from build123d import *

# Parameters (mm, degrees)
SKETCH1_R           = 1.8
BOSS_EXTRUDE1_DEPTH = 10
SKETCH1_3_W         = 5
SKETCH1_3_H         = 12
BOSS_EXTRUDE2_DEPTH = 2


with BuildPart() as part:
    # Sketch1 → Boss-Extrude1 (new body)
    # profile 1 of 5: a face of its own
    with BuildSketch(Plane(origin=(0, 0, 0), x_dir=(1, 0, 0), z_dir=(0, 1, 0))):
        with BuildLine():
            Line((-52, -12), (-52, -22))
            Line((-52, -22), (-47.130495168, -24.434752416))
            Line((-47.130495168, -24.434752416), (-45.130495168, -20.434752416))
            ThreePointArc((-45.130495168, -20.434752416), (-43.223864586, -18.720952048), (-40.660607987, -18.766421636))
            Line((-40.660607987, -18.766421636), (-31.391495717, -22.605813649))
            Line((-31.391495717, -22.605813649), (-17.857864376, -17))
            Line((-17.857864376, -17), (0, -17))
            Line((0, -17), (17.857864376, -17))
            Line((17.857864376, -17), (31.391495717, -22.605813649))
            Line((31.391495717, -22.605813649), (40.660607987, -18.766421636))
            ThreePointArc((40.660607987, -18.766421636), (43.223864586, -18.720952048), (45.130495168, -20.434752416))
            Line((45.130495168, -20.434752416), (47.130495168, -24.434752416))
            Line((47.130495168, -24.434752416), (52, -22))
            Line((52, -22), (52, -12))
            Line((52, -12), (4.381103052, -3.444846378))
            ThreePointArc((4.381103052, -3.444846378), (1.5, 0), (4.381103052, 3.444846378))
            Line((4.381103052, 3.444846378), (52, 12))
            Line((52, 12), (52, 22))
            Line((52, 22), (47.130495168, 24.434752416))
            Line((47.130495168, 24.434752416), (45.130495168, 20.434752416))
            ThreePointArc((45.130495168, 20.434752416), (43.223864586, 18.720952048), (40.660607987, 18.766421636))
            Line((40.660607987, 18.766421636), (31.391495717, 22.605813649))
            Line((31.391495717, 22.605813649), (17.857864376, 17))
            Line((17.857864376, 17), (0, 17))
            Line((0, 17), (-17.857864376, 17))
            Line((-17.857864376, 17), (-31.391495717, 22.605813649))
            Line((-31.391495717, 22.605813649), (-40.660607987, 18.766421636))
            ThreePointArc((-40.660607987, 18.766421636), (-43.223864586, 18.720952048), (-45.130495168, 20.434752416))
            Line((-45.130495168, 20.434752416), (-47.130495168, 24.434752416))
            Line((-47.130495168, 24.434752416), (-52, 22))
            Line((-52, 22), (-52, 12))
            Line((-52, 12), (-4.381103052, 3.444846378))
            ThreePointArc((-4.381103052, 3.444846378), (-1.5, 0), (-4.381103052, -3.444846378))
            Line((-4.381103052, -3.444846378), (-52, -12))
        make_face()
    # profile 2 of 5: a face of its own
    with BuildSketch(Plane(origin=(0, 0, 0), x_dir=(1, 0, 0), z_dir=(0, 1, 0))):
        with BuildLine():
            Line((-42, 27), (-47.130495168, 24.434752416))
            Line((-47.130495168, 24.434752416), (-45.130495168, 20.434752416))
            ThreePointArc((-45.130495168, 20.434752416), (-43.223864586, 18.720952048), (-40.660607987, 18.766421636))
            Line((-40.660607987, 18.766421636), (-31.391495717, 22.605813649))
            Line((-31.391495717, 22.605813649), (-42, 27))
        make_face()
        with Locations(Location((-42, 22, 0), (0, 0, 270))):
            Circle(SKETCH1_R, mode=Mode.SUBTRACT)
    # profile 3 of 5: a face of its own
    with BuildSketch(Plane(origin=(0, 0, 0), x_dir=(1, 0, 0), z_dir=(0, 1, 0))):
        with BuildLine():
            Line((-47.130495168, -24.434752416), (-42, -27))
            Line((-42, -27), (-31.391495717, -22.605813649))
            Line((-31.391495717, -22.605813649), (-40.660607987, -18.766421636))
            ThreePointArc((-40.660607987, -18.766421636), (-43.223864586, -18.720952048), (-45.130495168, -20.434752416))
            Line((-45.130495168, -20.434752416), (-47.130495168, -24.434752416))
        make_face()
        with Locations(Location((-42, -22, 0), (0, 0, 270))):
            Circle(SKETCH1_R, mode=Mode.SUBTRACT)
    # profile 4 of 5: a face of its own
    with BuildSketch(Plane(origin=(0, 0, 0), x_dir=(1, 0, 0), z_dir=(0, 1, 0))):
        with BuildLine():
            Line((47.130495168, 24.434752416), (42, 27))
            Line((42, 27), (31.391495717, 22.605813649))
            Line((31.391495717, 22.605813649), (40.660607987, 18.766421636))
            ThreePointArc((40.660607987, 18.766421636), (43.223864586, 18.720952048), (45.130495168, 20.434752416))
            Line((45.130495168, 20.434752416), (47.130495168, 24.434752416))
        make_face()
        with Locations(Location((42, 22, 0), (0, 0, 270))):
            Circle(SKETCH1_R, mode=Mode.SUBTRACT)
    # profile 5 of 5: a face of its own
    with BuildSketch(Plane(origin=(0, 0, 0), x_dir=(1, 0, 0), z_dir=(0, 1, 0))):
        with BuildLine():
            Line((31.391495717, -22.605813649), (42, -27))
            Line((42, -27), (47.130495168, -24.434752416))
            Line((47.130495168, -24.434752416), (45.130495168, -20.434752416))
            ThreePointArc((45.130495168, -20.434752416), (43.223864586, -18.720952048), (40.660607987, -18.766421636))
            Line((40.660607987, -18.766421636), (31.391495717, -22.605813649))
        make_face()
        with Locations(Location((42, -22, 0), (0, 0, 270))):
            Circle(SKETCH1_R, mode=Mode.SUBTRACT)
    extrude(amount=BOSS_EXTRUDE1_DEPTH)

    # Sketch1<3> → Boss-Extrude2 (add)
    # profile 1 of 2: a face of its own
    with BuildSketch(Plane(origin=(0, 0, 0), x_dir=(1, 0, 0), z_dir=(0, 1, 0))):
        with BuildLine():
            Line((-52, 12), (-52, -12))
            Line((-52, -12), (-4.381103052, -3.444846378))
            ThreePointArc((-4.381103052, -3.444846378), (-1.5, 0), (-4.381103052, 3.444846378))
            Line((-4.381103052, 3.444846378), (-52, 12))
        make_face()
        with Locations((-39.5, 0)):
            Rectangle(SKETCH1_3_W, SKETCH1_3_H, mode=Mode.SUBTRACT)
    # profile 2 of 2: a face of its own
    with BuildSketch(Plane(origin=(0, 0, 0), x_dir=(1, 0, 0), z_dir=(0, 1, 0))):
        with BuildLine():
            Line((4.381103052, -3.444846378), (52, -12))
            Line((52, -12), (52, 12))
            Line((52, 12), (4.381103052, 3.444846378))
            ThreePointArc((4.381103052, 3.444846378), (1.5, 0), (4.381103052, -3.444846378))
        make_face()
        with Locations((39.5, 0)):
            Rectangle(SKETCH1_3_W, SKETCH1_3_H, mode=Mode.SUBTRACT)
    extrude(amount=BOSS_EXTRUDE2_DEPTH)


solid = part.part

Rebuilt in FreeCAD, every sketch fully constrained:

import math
import FreeCAD as App
import Part
import Sketcher
Q = App.Units.Quantity


def add_polygon(sketch, points):
    """Adds a closed chain of lines whose ends are joined by coincident constraints."""
    first, n = sketch.GeometryCount, len(points)
    for a, b in zip(points, points[1:] + points[:1]):
        sketch.addGeometry(Part.LineSegment(App.Vector(*a, 0), App.Vector(*b, 0)), False)
    for i in range(n):
        sketch.addConstraint(Sketcher.Constraint("Coincident", first + i, 2, first + (i + 1) % n, 1))

doc = App.newDocument("Part")
body = doc.addObject("PartDesign::Body", "Body")

sketch1 = body.newObject("Sketcher::SketchObject", "Sketch")
sketch1.AttachmentSupport = (doc.getObject("XZ_Plane"), [""])
sketch1.MapMode = "FlatFace"
sketch1.addGeometry([
    Part.LineSegment(App.Vector(-52, 12, 0), App.Vector(-52, 22, 0)),
    Part.LineSegment(App.Vector(-52, 22, 0), App.Vector(-42, 27, 0)),
    Part.LineSegment(App.Vector(-42, 27, 0), App.Vector(-31.391496, 22.605814, 0)),
    Part.LineSegment(App.Vector(-31.391496, 22.605814, 0), App.Vector(-17.857864, 17, 0)),
    Part.LineSegment(App.Vector(-17.857864, 17, 0), App.Vector(17.857864, 17, 0)),
    Part.LineSegment(App.Vector(17.857864, 17, 0), App.Vector(31.391496, 22.605814, 0)),
    Part.LineSegment(App.Vector(31.391496, 22.605814, 0), App.Vector(42, 27, 0)),
    Part.LineSegment(App.Vector(42, 27, 0), App.Vector(52, 22, 0)),
    Part.LineSegment(App.Vector(52, 22, 0), App.Vector(52, 12, 0)),
    Part.LineSegment(App.Vector(52, 12, 0), App.Vector(4.381103, 3.444846, 0)),
    Part.ArcOfCircle(Part.Circle(App.Vector(5, 0, 0), App.Vector(0, 0, 1), 3.5), math.radians(100.185036), math.radians(259.814964)),
    Part.LineSegment(App.Vector(4.381103, -3.444846, 0), App.Vector(52, -12, 0)),
    Part.LineSegment(App.Vector(52, -12, 0), App.Vector(52, -22, 0)),
    Part.LineSegment(App.Vector(52, -22, 0), App.Vector(42, -27, 0)),
    Part.LineSegment(App.Vector(42, -27, 0), App.Vector(31.391496, -22.605814, 0)),
    Part.LineSegment(App.Vector(31.391496, -22.605814, 0), App.Vector(17.857864, -17, 0)),
    Part.LineSegment(App.Vector(17.857864, -17, 0), App.Vector(-17.857864, -17, 0)),
    Part.LineSegment(App.Vector(-17.857864, -17, 0), App.Vector(-31.391496, -22.605814, 0)),
    Part.LineSegment(App.Vector(-31.391496, -22.605814, 0), App.Vector(-42, -27, 0)),
    Part.LineSegment(App.Vector(-42, -27, 0), App.Vector(-52, -22, 0)),
    Part.LineSegment(App.Vector(-52, -22, 0), App.Vector(-52, -12, 0)),
    Part.LineSegment(App.Vector(-52, -12, 0), App.Vector(-4.381103, -3.444846, 0)),
    Part.ArcOfCircle(Part.Circle(App.Vector(-5, 0, 0), App.Vector(0, 0, 1), 3.5), math.radians(-79.814964), math.radians(79.814964)),
    Part.LineSegment(App.Vector(-4.381103, 3.444846, 0), App.Vector(-52, 12, 0)),
    Part.Circle(App.Vector(-42, 22, 0), App.Vector(0, 0, 1), 1.8),
    Part.Circle(App.Vector(42, 22, 0), App.Vector(0, 0, 1), 1.8),
    Part.Circle(App.Vector(42, -22, 0), App.Vector(0, 0, 1), 1.8),
    Part.Circle(App.Vector(-42, -22, 0), App.Vector(0, 0, 1), 1.8),
], False)
sketch1.addConstraint([
    Sketcher.Constraint("Coincident", 0, 2, 1, 1),
    Sketcher.Constraint("Coincident", 1, 2, 2, 1),
    Sketcher.Constraint("Coincident", 2, 2, 3, 1),
    Sketcher.Constraint("Coincident", 3, 2, 4, 1),
    Sketcher.Constraint("Coincident", 4, 2, 5, 1),
    Sketcher.Constraint("Coincident", 5, 2, 6, 1),
    Sketcher.Constraint("Coincident", 6, 2, 7, 1),
    Sketcher.Constraint("Coincident", 7, 2, 8, 1),
    Sketcher.Constraint("Coincident", 8, 2, 9, 1),
    Sketcher.Constraint("Tangent", 9, 2, 10, 1),
    Sketcher.Constraint("Tangent", 10, 2, 11, 1),
    Sketcher.Constraint("Coincident", 11, 2, 12, 1),
    Sketcher.Constraint("Coincident", 12, 2, 13, 1),
    Sketcher.Constraint("Coincident", 13, 2, 14, 1),
    Sketcher.Constraint("Coincident", 14, 2, 15, 1),
    Sketcher.Constraint("Coincident", 15, 2, 16, 1),
    Sketcher.Constraint("Coincident", 16, 2, 17, 1),
    Sketcher.Constraint("Coincident", 17, 2, 18, 1),
    Sketcher.Constraint("Coincident", 18, 2, 19, 1),
    Sketcher.Constraint("Coincident", 19, 2, 20, 1),
    Sketcher.Constraint("Coincident", 20, 2, 21, 1),
    Sketcher.Constraint("Tangent", 21, 2, 22, 1),
    Sketcher.Constraint("Tangent", 22, 2, 23, 1),
    Sketcher.Constraint("Coincident", 23, 2, 0, 1),
    Sketcher.Constraint("Vertical", 0),
    Sketcher.Constraint("Horizontal", 4),
    Sketcher.Constraint("Vertical", 8),
    Sketcher.Constraint("Vertical", 12),
    Sketcher.Constraint("Horizontal", 16),
    Sketcher.Constraint("Vertical", 20),
    Sketcher.Constraint("Equal", 10, 22),
    Sketcher.Constraint("Equal", 24, 25),
    Sketcher.Constraint("Equal", 25, 26),
    Sketcher.Constraint("Equal", 26, 27),
    Sketcher.Constraint("Symmetric", 10, 3, 22, 3, -1, 1),
    Sketcher.Constraint("Symmetric", 24, 3, 26, 3, -1, 1),
    Sketcher.Constraint("Symmetric", 25, 3, 27, 3, -1, 1),
    Sketcher.Constraint("Symmetric", 0, 2, 12, 2, -1, 1),
    Sketcher.Constraint("Symmetric", 1, 2, 13, 2, -1, 1),
    Sketcher.Constraint("Symmetric", 2, 2, 14, 2, -1, 1),
    Sketcher.Constraint("Symmetric", 3, 2, 15, 2, -1, 1),
    Sketcher.Constraint("Symmetric", 5, 2, 17, 2, -1, 1),
    Sketcher.Constraint("Symmetric", 6, 2, 18, 2, -1, 1),
    Sketcher.Constraint("Symmetric", 7, 2, 19, 2, -1, 1),
    Sketcher.Constraint("Symmetric", 24, 3, 25, 3, -2),
    Sketcher.Constraint("Symmetric", 2, 2, 5, 2, -2),
    Sketcher.Constraint("Symmetric", 1, 2, 6, 2, -2),
    Sketcher.Constraint("Symmetric", 0, 2, 7, 2, -2),
    Sketcher.Constraint("Symmetric", 10, 2, 21, 2, -2),
    Sketcher.Constraint("Parallel", 2, 3),
    Sketcher.Constraint("Parallel", 5, 6),
    Sketcher.Constraint("Parallel", 6, 17),
    Sketcher.Constraint("Parallel", 9, 21),
    Sketcher.Constraint("Parallel", 11, 23),
    Sketcher.Constraint("Horizontal", 25, 3, 0, 2),
    Sketcher.Constraint("Vertical", 27, 3, 1, 2),
    Sketcher.Constraint("Diameter", 24, Q("3.6 mm")),
    Sketcher.Constraint("Radius", 10, Q("3.5 mm")),
    Sketcher.Constraint("DistanceY", 0, 1, 0, 2, Q("10 mm")),
    Sketcher.Constraint("DistanceX", -1, 1, 10, 3, Q("5 mm")),
    Sketcher.Constraint("DistanceX", 24, 3, -1, 1, Q("42 mm")),
    Sketcher.Constraint("DistanceY", -1, 1, 24, 3, Q("22 mm")),
    Sketcher.Constraint("DistanceX", 0, 2, -1, 1, Q("52 mm")),
    Sketcher.Constraint("DistanceY", -1, 1, 1, 2, Q("27 mm")),
    Sketcher.Constraint("DistanceY", -1, 1, 3, 2, Q("17 mm")),
    Sketcher.Constraint("Angle", 2, Q("-22.5 deg")),
    Sketcher.Constraint("DistanceX", 17, 2, 10, 2, Q("35.772599 mm")),
])
pad1 = body.newObject("PartDesign::Pad", "Pad")
pad1.Profile = sketch1
pad1.Length = 10
pad1.Reversed = True

sketch2 = body.newObject("Sketcher::SketchObject", "Sketch001")
sketch2.AttachmentSupport = (doc.getObject("XZ_Plane"), [""])
sketch2.MapMode = "FlatFace"
sketch2.addGeometry(Part.LineSegment(App.Vector(-52, -12, 0), App.Vector(-52, 12, 0)), False)
sketch2.addGeometry(Part.LineSegment(App.Vector(-52, 12, 0), App.Vector(-4.381103, 3.444846, 0)), False)
sketch2.addGeometry(Part.ArcOfCircle(Part.Circle(App.Vector(-5, 0, 0), App.Vector(0, 0, 1), 3.5), math.radians(-79.814964), math.radians(79.814964)), False)
sketch2.addGeometry(Part.LineSegment(App.Vector(-4.381103, -3.444846, 0), App.Vector(-52, -12, 0)), False)
add_polygon(sketch2, [(-37, 6), (-42, 6), (-42, -6), (-37, -6)])
sketch2.addGeometry(Part.LineSegment(App.Vector(4.381103, 3.444846, 0), App.Vector(52, 12, 0)), False)
sketch2.addGeometry(Part.LineSegment(App.Vector(52, 12, 0), App.Vector(52, -12, 0)), False)
sketch2.addGeometry(Part.LineSegment(App.Vector(52, -12, 0), App.Vector(4.381103, -3.444846, 0)), False)
sketch2.addGeometry(Part.ArcOfCircle(Part.Circle(App.Vector(5, 0, 0), App.Vector(0, 0, 1), 3.5), math.radians(100.185036), math.radians(259.814964)), False)
add_polygon(sketch2, [(42, 6), (37, 6), (37, -6), (42, -6)])
sketch2.addConstraint([
    Sketcher.Constraint("Coincident", 0, 2, 1, 1),
    Sketcher.Constraint("Tangent", 1, 2, 2, 2),
    Sketcher.Constraint("Tangent", 2, 1, 3, 1),
    Sketcher.Constraint("Coincident", 3, 2, 0, 1),
    Sketcher.Constraint("Coincident", 8, 2, 9, 1),
    Sketcher.Constraint("Coincident", 9, 2, 10, 1),
    Sketcher.Constraint("Tangent", 10, 2, 11, 2),
    Sketcher.Constraint("Tangent", 11, 1, 8, 1),
    Sketcher.Constraint("Vertical", 0),
    Sketcher.Constraint("Horizontal", 4),
    Sketcher.Constraint("Vertical", 5),
    Sketcher.Constraint("Horizontal", 6),
    Sketcher.Constraint("Vertical", 7),
    Sketcher.Constraint("Vertical", 9),
    Sketcher.Constraint("Horizontal", 12),
    Sketcher.Constraint("Vertical", 13),
    Sketcher.Constraint("Horizontal", 14),
    Sketcher.Constraint("Vertical", 15),
    Sketcher.Constraint("Equal", 2, 11),
    Sketcher.Constraint("Symmetric", 2, 3, 11, 3, -1, 1),
    Sketcher.Constraint("Symmetric", 3, 2, 8, 2, -1, 1),
    Sketcher.Constraint("Symmetric", 6, 2, 12, 2, -1, 1),
    Sketcher.Constraint("Symmetric", 4, 2, 14, 2, -1, 1),
    Sketcher.Constraint("Symmetric", 2, 1, 10, 2, -2),
    Sketcher.Constraint("Parallel", 1, 10),
    Sketcher.Constraint("Horizontal", 7, 2, 12, 2),
    Sketcher.Constraint("Radius", 2, Q("3.5 mm")),
    Sketcher.Constraint("DistanceX", 4, 2, 4, 1, Q("5 mm")),
    Sketcher.Constraint("DistanceY", 0, 1, 0, 2, Q("24 mm")),
    Sketcher.Constraint("DistanceY", 5, 2, 5, 1, Q("12 mm")),
    Sketcher.Constraint("DistanceX", 2, 3, -1, 1, Q("5 mm")),
    Sketcher.Constraint("DistanceX", 0, 2, -1, 1, Q("52 mm")),
    Sketcher.Constraint("DistanceX", 4, 2, -1, 1, Q("42 mm")),
])
pad2 = body.newObject("PartDesign::Pad", "Pad001")
pad2.Profile = sketch2
pad2.Length = 2
pad2.Reversed = True

doc.recompute()
